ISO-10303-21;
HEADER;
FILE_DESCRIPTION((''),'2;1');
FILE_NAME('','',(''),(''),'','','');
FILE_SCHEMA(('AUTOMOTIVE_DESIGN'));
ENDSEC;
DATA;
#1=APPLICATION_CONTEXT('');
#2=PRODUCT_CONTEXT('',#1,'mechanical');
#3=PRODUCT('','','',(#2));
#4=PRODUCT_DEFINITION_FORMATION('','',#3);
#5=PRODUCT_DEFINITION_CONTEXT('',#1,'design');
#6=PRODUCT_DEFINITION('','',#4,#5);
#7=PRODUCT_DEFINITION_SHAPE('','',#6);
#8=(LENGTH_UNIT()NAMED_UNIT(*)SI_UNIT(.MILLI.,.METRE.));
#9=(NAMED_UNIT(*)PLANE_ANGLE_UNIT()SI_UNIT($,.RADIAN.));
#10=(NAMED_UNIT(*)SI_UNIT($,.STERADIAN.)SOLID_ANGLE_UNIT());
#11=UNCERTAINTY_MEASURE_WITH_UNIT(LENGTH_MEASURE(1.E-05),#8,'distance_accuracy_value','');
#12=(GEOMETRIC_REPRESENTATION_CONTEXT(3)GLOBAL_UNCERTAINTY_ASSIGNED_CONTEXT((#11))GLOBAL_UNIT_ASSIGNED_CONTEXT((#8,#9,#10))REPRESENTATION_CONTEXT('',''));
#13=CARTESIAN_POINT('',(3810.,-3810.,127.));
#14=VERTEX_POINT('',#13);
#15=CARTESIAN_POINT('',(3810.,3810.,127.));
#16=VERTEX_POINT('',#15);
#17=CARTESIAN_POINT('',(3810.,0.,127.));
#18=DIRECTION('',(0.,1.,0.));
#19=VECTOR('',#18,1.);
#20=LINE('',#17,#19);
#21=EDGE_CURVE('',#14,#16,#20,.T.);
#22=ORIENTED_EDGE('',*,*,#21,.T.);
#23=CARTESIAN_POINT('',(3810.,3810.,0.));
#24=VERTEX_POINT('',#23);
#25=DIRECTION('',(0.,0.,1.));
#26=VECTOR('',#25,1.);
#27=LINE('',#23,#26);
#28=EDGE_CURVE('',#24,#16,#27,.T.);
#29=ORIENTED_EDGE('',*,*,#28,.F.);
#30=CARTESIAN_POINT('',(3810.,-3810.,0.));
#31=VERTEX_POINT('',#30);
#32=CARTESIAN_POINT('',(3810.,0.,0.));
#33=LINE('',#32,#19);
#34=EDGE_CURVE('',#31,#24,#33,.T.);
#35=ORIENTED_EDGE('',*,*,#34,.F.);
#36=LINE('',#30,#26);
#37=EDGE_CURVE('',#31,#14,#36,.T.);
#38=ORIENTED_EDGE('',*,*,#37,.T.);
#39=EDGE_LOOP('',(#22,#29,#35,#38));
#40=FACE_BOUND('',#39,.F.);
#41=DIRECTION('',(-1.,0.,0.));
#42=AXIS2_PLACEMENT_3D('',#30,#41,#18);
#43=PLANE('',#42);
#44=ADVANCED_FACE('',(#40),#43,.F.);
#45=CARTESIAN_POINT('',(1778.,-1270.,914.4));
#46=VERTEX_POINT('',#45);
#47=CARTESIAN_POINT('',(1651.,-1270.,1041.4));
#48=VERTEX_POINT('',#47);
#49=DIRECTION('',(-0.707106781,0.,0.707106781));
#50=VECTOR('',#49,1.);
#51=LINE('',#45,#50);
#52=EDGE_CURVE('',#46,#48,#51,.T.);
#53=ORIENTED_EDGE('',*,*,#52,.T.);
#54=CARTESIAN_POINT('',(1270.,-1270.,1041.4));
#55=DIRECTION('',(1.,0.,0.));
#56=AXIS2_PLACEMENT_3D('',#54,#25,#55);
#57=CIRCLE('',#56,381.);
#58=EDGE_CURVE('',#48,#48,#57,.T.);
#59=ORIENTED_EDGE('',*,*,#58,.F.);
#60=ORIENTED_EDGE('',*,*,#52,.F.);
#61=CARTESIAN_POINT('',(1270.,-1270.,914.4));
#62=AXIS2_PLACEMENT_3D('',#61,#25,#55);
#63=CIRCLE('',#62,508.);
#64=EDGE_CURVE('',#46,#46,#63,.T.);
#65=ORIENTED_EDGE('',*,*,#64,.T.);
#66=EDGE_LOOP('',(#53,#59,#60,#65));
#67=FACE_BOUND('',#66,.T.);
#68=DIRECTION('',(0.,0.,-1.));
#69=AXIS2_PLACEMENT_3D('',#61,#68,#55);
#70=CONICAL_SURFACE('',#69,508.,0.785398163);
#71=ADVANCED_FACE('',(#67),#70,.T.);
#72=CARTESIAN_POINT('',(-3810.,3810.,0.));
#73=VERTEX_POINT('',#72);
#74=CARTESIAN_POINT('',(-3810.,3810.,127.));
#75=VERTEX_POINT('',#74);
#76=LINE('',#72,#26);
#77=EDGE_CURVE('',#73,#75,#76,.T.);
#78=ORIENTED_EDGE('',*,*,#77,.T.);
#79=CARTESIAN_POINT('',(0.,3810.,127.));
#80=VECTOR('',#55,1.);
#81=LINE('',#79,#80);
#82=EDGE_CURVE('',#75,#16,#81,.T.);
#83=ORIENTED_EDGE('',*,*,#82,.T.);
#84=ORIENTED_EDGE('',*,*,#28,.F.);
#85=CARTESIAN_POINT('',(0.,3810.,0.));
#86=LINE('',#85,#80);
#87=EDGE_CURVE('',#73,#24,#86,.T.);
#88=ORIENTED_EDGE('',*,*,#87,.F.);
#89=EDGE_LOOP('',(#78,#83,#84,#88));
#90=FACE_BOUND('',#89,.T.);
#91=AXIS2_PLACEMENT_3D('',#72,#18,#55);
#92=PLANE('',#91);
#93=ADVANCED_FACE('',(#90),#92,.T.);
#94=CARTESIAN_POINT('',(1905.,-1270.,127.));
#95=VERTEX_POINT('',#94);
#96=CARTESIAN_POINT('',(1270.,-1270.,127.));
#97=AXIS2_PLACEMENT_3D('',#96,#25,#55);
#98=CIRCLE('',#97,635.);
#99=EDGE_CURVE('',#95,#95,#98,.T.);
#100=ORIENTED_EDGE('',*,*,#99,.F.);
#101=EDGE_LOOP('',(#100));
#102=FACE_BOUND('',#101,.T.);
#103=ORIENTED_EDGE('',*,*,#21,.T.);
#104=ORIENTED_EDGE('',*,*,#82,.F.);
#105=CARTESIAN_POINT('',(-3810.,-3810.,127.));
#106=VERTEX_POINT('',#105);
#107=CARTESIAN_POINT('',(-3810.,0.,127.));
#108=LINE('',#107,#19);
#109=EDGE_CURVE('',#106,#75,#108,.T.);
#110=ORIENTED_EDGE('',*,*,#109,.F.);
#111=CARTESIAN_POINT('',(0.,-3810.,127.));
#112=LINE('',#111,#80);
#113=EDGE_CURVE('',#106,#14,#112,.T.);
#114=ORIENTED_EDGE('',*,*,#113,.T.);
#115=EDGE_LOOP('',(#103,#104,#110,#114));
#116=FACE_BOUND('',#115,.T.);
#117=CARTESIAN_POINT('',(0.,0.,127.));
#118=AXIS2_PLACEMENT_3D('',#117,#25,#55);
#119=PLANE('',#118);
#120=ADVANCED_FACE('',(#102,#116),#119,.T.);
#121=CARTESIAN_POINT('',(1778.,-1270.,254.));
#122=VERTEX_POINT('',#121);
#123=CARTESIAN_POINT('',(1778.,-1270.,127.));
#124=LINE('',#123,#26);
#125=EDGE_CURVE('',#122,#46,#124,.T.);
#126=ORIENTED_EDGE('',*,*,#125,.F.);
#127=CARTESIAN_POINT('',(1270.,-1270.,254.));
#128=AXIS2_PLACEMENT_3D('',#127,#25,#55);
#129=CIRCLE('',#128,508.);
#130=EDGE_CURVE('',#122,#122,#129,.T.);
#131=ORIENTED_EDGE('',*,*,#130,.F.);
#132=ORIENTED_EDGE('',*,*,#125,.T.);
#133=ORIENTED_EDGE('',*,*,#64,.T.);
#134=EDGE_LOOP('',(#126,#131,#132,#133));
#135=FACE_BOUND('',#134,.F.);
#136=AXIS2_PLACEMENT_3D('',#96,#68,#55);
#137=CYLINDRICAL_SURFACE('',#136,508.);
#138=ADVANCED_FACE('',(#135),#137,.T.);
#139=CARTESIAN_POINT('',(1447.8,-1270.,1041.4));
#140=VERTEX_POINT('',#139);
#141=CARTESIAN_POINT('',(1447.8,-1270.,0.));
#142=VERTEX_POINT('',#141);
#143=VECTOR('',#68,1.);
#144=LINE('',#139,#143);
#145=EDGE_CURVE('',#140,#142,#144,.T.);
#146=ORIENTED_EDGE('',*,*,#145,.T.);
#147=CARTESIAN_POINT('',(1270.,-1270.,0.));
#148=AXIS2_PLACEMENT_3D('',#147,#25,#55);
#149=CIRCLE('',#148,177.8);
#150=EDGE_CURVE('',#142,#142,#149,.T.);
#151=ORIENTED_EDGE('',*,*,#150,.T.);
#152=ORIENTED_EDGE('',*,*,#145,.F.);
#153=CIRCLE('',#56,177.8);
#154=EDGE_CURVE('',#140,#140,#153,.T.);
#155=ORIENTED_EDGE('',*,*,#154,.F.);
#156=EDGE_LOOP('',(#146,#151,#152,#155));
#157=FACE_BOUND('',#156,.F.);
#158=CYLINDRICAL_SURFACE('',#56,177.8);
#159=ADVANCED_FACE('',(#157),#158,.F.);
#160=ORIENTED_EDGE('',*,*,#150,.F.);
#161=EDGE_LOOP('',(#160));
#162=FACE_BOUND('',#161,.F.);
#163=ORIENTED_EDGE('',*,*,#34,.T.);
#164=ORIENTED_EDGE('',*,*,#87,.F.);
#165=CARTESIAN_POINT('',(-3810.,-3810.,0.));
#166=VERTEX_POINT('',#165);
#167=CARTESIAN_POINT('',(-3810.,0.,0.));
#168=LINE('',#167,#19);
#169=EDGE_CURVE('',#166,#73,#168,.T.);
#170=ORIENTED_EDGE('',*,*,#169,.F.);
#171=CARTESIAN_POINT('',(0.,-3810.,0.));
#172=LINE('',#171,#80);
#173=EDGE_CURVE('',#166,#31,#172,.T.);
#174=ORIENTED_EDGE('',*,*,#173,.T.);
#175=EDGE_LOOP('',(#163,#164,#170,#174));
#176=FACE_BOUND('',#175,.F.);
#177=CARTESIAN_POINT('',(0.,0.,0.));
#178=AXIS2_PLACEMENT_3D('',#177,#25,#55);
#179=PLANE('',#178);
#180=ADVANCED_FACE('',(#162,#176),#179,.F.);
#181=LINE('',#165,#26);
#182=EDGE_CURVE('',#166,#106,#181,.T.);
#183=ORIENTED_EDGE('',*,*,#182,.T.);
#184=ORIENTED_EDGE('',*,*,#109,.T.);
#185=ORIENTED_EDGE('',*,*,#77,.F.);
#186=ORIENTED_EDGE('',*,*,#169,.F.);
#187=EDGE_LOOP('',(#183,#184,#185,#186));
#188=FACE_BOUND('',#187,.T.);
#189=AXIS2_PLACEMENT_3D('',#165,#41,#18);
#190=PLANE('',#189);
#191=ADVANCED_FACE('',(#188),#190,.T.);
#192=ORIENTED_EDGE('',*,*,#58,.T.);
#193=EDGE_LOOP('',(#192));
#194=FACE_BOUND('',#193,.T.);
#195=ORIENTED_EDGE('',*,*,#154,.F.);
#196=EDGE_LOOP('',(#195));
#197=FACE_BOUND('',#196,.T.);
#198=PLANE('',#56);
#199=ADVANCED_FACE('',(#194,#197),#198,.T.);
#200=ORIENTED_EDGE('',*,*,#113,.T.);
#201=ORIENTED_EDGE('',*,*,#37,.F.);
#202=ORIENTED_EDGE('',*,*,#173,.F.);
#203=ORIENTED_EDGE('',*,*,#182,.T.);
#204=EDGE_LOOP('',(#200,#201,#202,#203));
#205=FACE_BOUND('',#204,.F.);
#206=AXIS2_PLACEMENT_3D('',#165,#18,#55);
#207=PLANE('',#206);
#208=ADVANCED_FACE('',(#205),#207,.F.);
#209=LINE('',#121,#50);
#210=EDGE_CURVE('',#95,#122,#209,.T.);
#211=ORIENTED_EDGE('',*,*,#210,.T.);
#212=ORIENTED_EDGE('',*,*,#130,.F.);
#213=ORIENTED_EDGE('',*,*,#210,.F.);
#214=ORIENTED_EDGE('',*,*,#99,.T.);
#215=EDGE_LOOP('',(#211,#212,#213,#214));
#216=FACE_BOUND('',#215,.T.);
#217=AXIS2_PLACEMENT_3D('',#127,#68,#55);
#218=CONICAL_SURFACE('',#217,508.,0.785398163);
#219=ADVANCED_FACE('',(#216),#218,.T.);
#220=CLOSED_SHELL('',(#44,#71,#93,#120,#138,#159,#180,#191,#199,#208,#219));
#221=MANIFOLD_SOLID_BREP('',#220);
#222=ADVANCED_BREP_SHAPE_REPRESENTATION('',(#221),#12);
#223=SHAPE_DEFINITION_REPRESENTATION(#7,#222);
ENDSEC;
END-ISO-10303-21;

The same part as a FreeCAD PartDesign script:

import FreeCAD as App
import Part
import Sketcher

V = App.Vector
Q = App.Units.Quantity


def edges_at(feature, points):
    """Names of the edges that pass closest to the given points."""
    edges = feature.Shape.Edges
    near = lambda p: min(range(len(edges)), key=lambda i: edges[i].distToShape(Part.Vertex(*p))[0])
    return sorted({f"Edge{near(p) + 1}" for p in points})

doc = App.newDocument("Part")
body = doc.addObject("PartDesign::Body", "Body")

# Sketch on XY plane
sketch1 = doc.addObject("Sketcher::SketchObject", "Sketch")
body.addObject(sketch1)
sketch1.AttachmentSupport = (doc.XY_Plane, [""])
sketch1.MapMode = "FlatFace"
sketch1.addGeometry([
    Part.LineSegment(V(-3810, 3810, 0), V(-3810, -3810, 0)),
    Part.LineSegment(V(-3810, -3810, 0), V(3810, -3810, 0)),
    Part.LineSegment(V(3810, -3810, 0), V(3810, 3810, 0)),
    Part.LineSegment(V(3810, 3810, 0), V(-3810, 3810, 0)),
], False)
sketch1.addConstraint([
    Sketcher.Constraint("Coincident", 0, 2, 1, 1),
    Sketcher.Constraint("Coincident", 1, 2, 2, 1),
    Sketcher.Constraint("Coincident", 2, 2, 3, 1),
    Sketcher.Constraint("Coincident", 3, 2, 0, 1),
    Sketcher.Constraint("Vertical", 0),
    Sketcher.Constraint("Horizontal", 1),
    Sketcher.Constraint("Vertical", 2),
    Sketcher.Constraint("Horizontal", 3),
    Sketcher.Constraint("Symmetric", 0, 2, 2, 2, -1, 1),
    Sketcher.Constraint("Equal", 3, 0),
    Sketcher.Constraint("DistanceX", 1, 1, 1, 2, Q("300 in")),
])
pad1 = doc.addObject("PartDesign::Pad", "Pad")
body.addObject(pad1)
pad1.Profile = sketch1
pad1.Length = Q("5 in")

# Sketch on XY plane
sketch2 = doc.addObject("Sketcher::SketchObject", "Sketch001")
body.addObject(sketch2)
sketch2.AttachmentSupport = (doc.XY_Plane, [""])
sketch2.MapMode = "FlatFace"
sketch2.AttachmentOffset = App.Placement(V(0, 0, 5 * 25.4), App.Rotation())
sketch2.addGeometry(Part.Circle(V(1270, -1270, 0), V(0, 0, 1), 508), False)
sketch2.addConstraint([
    Sketcher.Constraint("Diameter", 0, Q("40 in")),
    Sketcher.Constraint("DistanceX", -1, 1, 0, 3, Q("50 in")),
    Sketcher.Constraint("DistanceY", 0, 3, -1, 1, Q("50 in")),
])
pad2 = doc.addObject("PartDesign::Pad", "Pad001")
body.addObject(pad2)
pad2.Profile = sketch2
pad2.Length = Q("36 in")
doc.recompute()

chamfer = doc.addObject("PartDesign::Chamfer", "Chamfer")
body.addObject(chamfer)
chamfer.Base = (pad2, edges_at(pad2, [(762, -1270, 1041.4), (762, -1270, 127)]))
chamfer.Size = Q("5 in")

# Sketch on XY plane
sketch3 = doc.addObject("Sketcher::SketchObject", "Sketch002")
body.addObject(sketch3)
sketch3.AttachmentSupport = (doc.XY_Plane, [""])
sketch3.MapMode = "FlatFace"
sketch3.AttachmentOffset = App.Placement(V(0, 0, 41 * 25.4), App.Rotation())
sketch3.addGeometry(Part.Circle(V(1270, -1270, 0), V(0, 0, 1), 178), False)
sketch3.addConstraint([
    Sketcher.Constraint("Diameter", 0, Q("14 in")),
    Sketcher.Constraint("DistanceX", -1, 1, 0, 3, Q("50 in")),
    Sketcher.Constraint("DistanceY", 0, 3, -1, 1, Q("50 in")),
])
pocket1 = doc.addObject("PartDesign::Pocket", "Pocket")
body.addObject(pocket1)
pocket1.Profile = sketch3
pocket1.Type = "ThroughAll"

doc.recompute()
